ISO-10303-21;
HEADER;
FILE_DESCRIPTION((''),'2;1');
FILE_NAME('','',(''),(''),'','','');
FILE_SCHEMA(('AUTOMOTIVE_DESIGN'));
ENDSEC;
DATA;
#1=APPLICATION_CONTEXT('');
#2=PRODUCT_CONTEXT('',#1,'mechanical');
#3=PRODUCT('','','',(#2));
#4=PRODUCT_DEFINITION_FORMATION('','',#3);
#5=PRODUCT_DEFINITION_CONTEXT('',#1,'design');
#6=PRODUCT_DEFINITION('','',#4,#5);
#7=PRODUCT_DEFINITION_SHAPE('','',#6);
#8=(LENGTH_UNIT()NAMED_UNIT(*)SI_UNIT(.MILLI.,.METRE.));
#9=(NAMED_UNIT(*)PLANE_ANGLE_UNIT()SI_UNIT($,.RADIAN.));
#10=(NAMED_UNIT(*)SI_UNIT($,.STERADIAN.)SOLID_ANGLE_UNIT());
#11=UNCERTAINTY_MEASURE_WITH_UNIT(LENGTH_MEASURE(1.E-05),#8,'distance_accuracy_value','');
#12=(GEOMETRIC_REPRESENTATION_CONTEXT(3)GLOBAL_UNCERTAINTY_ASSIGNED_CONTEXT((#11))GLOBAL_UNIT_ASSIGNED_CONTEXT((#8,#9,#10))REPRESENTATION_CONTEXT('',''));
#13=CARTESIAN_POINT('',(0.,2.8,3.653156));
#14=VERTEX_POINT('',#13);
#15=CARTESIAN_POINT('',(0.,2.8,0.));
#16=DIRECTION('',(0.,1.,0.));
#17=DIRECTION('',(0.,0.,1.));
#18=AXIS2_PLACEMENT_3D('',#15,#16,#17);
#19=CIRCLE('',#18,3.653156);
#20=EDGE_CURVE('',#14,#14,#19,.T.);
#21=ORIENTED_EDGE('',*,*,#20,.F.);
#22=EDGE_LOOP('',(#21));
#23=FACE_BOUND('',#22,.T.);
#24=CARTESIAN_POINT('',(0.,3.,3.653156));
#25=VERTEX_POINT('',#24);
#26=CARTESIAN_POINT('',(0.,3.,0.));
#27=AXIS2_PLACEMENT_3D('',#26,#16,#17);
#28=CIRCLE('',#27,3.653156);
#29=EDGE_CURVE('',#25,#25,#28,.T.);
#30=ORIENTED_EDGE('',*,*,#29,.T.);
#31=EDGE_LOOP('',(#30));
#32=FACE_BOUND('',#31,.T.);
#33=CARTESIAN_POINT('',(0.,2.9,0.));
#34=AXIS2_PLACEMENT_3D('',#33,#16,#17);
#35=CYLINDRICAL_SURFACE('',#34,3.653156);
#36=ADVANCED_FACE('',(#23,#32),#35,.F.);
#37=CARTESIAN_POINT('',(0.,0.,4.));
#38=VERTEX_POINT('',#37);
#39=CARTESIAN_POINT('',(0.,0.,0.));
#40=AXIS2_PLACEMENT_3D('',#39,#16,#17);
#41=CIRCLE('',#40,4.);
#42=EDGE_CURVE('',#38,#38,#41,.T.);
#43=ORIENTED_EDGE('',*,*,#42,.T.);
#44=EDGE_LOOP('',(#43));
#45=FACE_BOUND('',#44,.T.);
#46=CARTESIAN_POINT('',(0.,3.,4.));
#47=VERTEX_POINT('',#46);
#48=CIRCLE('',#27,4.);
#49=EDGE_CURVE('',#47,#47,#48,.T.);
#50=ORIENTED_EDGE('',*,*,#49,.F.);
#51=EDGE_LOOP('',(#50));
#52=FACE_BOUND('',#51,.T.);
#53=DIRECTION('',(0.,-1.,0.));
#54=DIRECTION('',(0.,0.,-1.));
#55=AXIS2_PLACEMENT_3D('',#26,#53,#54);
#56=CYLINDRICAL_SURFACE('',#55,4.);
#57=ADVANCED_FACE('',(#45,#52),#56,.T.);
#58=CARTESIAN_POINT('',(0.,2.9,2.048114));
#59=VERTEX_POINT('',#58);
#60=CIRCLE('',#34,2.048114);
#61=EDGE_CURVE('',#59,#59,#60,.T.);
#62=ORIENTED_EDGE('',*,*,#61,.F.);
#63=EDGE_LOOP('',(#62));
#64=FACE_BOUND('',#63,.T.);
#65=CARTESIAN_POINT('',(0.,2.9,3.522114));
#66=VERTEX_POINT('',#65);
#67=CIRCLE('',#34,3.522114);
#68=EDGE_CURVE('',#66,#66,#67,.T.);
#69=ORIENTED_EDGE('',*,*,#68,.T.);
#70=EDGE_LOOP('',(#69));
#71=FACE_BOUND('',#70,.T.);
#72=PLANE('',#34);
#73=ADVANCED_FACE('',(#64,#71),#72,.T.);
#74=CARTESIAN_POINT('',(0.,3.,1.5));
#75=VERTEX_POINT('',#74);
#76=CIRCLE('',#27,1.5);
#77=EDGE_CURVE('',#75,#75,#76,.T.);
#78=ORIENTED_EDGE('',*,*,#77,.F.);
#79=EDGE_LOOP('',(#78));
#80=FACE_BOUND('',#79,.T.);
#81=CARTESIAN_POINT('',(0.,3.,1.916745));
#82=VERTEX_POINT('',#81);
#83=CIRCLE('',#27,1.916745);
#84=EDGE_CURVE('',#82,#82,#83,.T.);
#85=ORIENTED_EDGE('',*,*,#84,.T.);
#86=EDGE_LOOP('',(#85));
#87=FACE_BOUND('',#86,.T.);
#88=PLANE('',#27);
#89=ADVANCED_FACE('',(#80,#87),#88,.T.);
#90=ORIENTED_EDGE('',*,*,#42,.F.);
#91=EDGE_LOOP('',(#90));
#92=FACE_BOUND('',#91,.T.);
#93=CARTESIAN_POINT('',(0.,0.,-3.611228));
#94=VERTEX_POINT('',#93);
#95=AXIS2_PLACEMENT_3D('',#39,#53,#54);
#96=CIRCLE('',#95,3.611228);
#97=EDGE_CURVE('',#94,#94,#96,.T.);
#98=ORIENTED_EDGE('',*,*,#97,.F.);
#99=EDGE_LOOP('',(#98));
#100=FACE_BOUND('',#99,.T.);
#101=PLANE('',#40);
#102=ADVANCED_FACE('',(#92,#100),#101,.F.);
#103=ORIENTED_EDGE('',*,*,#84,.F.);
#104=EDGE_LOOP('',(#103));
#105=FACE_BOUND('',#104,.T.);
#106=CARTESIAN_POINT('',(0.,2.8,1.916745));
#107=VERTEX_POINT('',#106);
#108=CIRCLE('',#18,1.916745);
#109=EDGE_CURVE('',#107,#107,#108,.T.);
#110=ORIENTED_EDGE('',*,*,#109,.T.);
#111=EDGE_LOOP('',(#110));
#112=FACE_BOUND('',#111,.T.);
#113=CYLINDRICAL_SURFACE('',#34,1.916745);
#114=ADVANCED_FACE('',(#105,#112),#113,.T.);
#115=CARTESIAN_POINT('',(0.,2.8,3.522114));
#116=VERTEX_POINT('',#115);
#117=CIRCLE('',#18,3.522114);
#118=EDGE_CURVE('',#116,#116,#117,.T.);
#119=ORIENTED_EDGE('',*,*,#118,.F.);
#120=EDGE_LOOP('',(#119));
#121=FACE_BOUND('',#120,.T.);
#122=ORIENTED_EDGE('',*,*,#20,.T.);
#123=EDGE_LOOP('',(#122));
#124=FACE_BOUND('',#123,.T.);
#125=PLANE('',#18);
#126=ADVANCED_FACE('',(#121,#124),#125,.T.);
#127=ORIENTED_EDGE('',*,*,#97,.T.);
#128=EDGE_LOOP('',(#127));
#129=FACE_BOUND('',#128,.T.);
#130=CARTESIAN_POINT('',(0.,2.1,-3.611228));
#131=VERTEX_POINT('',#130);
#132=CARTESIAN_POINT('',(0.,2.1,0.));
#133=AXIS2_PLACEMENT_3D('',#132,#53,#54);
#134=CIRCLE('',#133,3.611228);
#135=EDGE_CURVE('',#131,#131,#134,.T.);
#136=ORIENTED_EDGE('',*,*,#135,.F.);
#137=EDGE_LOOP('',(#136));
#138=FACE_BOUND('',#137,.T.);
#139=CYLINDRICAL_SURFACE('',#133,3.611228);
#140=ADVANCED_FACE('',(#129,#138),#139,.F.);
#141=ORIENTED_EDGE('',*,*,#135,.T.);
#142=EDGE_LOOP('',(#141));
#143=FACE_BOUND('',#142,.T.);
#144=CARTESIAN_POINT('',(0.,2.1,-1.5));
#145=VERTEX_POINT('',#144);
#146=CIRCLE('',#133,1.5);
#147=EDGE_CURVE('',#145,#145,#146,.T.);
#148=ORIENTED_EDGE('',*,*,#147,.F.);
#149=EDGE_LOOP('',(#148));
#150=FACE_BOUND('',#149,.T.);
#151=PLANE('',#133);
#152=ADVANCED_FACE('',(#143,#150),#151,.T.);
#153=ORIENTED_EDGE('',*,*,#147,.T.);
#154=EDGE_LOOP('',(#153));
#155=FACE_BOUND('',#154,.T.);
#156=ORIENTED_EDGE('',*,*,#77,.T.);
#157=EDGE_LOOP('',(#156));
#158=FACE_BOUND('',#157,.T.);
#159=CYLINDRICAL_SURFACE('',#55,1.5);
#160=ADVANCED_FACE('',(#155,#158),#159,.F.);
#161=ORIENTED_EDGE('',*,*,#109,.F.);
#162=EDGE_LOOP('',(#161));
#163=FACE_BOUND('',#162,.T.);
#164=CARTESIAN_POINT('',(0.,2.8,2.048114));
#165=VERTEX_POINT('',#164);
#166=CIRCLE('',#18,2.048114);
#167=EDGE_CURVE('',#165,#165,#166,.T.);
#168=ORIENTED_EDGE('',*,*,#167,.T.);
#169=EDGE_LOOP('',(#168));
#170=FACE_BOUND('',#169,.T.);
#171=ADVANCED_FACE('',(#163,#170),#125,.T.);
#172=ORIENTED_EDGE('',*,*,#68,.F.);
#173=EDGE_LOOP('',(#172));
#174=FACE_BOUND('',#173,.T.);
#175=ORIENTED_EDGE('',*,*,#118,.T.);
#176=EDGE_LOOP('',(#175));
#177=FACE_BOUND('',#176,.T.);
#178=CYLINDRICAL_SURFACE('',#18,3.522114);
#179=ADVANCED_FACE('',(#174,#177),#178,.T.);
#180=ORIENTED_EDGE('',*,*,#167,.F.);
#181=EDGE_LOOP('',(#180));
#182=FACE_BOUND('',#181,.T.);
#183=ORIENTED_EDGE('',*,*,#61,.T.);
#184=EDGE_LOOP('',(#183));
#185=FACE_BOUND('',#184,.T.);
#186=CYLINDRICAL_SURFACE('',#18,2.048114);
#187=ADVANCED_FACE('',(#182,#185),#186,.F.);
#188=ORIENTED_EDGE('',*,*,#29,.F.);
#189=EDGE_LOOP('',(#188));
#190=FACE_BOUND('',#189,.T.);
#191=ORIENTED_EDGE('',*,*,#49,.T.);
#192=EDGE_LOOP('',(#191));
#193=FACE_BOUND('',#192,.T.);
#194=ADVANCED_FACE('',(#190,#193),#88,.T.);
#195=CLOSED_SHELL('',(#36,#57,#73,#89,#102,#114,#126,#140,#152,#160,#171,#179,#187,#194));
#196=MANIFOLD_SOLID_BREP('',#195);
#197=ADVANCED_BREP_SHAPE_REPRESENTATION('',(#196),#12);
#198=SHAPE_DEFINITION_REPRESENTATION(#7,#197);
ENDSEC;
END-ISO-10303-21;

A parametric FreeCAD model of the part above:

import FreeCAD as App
import Part
import Sketcher

doc = App.newDocument("Part")
body = doc.addObject("PartDesign::Body", "Body")

# Sketch on XZ plane
sketch1 = body.newObject("Sketcher::SketchObject", "Sketch")
sketch1.AttachmentSupport = (doc.getObject("XZ_Plane"), [""])
sketch1.MapMode = "FlatFace"
sketch1.addGeometry([
    Part.Circle(App.Vector(0, 0, 0), App.Vector(0, 0, 1), 4),
    Part.Circle(App.Vector(0, 0, 0), App.Vector(0, 0, 1), 1.5),
], False)
sketch1.addConstraint([
    Sketcher.Constraint("Coincident", 0, 3, -1, 1),
    Sketcher.Constraint("Coincident", 1, 3, -1, 1),
    Sketcher.Constraint("Diameter", 0, 8.0),
    Sketcher.Constraint("Diameter", 1, 3.0),
])
pad1 = body.newObject("PartDesign::Pad", "Pad")
pad1.Profile = sketch1
pad1.Length = 3
pad1.Reversed = True

# Sketch on XZ plane
sketch2 = body.newObject("Sketcher::SketchObject", "Sketch001")
sketch2.AttachmentSupport = (doc.getObject("XZ_Plane"), [""])
sketch2.MapMode = "FlatFace"
sketch2.AttachmentOffset = App.Placement(App.Vector(0, 0, -3), App.Rotation())
sketch2.addGeometry([
    Part.Circle(App.Vector(0, 0, 0), App.Vector(0, 0, 1), 3.7),
    Part.Circle(App.Vector(0, 0, 0), App.Vector(0, 0, 1), 1.9),
], False)
sketch2.addConstraint([
    Sketcher.Constraint("Coincident", 0, 3, -1, 1),
    Sketcher.Constraint("Coincident", 1, 3, -1, 1),
    Sketcher.Constraint("Diameter", 1, 3.833489),
    Sketcher.Constraint("Diameter", 0, 7.306312),
])
pocket1 = body.newObject("PartDesign::Pocket", "Pocket")
pocket1.Profile = sketch2
pocket1.Length = 0.1
pocket1.Reversed = True

# Sketch on XZ plane
sketch3 = body.newObject("Sketcher::SketchObject", "Sketch002")
sketch3.AttachmentSupport = (doc.getObject("XZ_Plane"), [""])
sketch3.MapMode = "FlatFace"
sketch3.AttachmentOffset = App.Placement(App.Vector(0, 0, -2.9), App.Rotation())
sketch3.addGeometry([
    Part.Circle(App.Vector(0, 0, 0), App.Vector(0, 0, 1), 2),
    Part.Circle(App.Vector(0, 0, 0), App.Vector(0, 0, 1), 1.9),
], False)
sketch3.addConstraint([
    Sketcher.Constraint("Coincident", 0, 3, -1, 1),
    Sketcher.Constraint("Coincident", 1, 3, -1, 1),
    Sketcher.Constraint("Diameter", 0, 4.096228),
    Sketcher.Constraint("Diameter", 1, 3.833489),
])
pocket2 = body.newObject("PartDesign::Pocket", "Pocket001")
pocket2.Profile = sketch3
pocket2.Length = 0.1
pocket2.Reversed = True

# Sketch on XZ plane
sketch4 = body.newObject("Sketcher::SketchObject", "Sketch003")
sketch4.AttachmentSupport = (doc.getObject("XZ_Plane"), [""])
sketch4.MapMode = "FlatFace"
sketch4.AttachmentOffset = App.Placement(App.Vector(0, 0, -2.9), App.Rotation())
sketch4.addGeometry([
    Part.Circle(App.Vector(0, 0, 0), App.Vector(0, 0, 1), 3.7),
    Part.Circle(App.Vector(0, 0, 0), App.Vector(0, 0, 1), 3.5),
], False)
sketch4.addConstraint([
    Sketcher.Constraint("Coincident", 0, 3, -1, 1),
    Sketcher.Constraint("Coincident", 1, 3, -1, 1),
    Sketcher.Constraint("Diameter", 1, 7.044228),
    Sketcher.Constraint("Diameter", 0, 7.306312),
])
pocket3 = body.newObject("PartDesign::Pocket", "Pocket002")
pocket3.Profile = sketch4
pocket3.Length = 0.1
pocket3.Reversed = True

# Sketch on XZ plane
sketch5 = body.newObject("Sketcher::SketchObject", "Sketch004")
sketch5.AttachmentSupport = (doc.getObject("XZ_Plane"), [""])
sketch5.MapMode = "FlatFace"
sketch5.addGeometry(Part.Circle(App.Vector(0, 0, 0), App.Vector(0, 0, 1), 3.6), False)
sketch5.addConstraint([
    Sketcher.Constraint("Coincident", 0, 3, -1, 1),
    Sketcher.Constraint("Diameter", 0, 7.222456),
])
pocket4 = body.newObject("PartDesign::Pocket", "Pocket003")
pocket4.Profile = sketch5
pocket4.Length = 2.1

doc.recompute()
